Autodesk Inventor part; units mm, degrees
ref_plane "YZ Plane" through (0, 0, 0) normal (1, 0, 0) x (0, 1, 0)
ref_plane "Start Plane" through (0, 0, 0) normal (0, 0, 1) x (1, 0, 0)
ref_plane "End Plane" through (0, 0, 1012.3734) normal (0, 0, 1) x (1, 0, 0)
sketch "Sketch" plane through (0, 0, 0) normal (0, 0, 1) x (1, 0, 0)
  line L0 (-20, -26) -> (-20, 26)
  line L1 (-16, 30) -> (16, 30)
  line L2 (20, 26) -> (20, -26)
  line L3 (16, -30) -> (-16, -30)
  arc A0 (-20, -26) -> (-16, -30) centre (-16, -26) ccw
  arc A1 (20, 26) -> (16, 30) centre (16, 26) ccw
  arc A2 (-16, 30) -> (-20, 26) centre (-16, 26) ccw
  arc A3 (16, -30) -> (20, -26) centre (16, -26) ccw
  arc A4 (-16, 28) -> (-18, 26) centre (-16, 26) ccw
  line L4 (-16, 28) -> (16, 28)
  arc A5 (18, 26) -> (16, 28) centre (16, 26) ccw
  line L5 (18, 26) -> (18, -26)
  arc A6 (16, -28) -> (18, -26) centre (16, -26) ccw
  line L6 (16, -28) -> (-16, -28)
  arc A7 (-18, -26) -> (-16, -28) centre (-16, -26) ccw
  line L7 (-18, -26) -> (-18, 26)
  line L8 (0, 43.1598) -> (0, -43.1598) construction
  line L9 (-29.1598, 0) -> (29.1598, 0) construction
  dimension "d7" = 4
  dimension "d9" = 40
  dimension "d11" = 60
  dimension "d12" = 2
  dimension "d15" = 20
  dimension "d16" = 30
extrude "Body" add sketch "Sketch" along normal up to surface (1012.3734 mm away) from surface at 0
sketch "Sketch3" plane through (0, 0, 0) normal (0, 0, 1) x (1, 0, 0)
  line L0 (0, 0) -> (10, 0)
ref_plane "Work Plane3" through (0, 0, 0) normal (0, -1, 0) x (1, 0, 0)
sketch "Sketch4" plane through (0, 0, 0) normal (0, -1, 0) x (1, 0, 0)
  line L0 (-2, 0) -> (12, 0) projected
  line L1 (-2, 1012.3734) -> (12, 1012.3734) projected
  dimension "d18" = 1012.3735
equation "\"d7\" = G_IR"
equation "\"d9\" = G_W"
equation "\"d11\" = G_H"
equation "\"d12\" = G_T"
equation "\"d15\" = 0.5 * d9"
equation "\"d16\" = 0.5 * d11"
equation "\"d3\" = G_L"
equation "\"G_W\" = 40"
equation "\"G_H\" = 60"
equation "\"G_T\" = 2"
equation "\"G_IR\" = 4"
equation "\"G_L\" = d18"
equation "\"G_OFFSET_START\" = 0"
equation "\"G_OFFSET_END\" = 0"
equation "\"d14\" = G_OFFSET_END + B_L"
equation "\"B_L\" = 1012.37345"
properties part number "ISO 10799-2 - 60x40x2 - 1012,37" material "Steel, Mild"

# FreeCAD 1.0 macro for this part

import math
import FreeCAD as App
import Part
import Sketcher
from FreeCAD import Vector

doc = App.newDocument("Part")
body = doc.addObject("PartDesign::Body", "Body")

# Sketch on XY plane
sketch1 = body.newObject("Sketcher::SketchObject", "Sketch")
sketch1.AttachmentSupport = (doc.getObject("XY_Plane"), [""])
sketch1.MapMode = "FlatFace"
sketch1.addGeometry([
    Part.LineSegment(Vector(-20, 26, 0), Vector(-20, -26, 0)),  # 0
    Part.ArcOfCircle(Part.Circle(Vector(-16, -26, 0), Vector(0, 0, 1), 4), math.radians(180), math.radians(270)),  # 1
    Part.LineSegment(Vector(-16, -30, 0), Vector(16, -30, 0)),  # 2
    Part.ArcOfCircle(Part.Circle(Vector(16, -26, 0), Vector(0, 0, 1), 4), math.radians(-90), math.radians(0)),  # 3
    Part.LineSegment(Vector(20, -26, 0), Vector(20, 26, 0)),  # 4
    Part.ArcOfCircle(Part.Circle(Vector(16, 26, 0), Vector(0, 0, 1), 4), math.radians(0), math.radians(90)),  # 5
    Part.LineSegment(Vector(16, 30, 0), Vector(-16, 30, 0)),  # 6
    Part.ArcOfCircle(Part.Circle(Vector(-16, 26, 0), Vector(0, 0, 1), 4), math.radians(90), math.radians(180)),  # 7
    Part.ArcOfCircle(Part.Circle(Vector(-16, 26, 0), Vector(0, 0, 1), 2), math.radians(90), math.radians(180)),  # 8
    Part.LineSegment(Vector(-16, 28, 0), Vector(16, 28, 0)),  # 9
    Part.ArcOfCircle(Part.Circle(Vector(16, 26, 0), Vector(0, 0, 1), 2), math.radians(0), math.radians(90)),  # 10
    Part.LineSegment(Vector(18, 26, 0), Vector(18, -26, 0)),  # 11
    Part.ArcOfCircle(Part.Circle(Vector(16, -26, 0), Vector(0, 0, 1), 2), math.radians(-90), math.radians(0)),  # 12
    Part.LineSegment(Vector(16, -28, 0), Vector(-16, -28, 0)),  # 13
    Part.ArcOfCircle(Part.Circle(Vector(-16, -26, 0), Vector(0, 0, 1), 2), math.radians(180), math.radians(270)),  # 14
    Part.LineSegment(Vector(-18, -26, 0), Vector(-18, 26, 0)),  # 15
], False)
sketch1.addConstraint([
    Sketcher.Constraint("Tangent", 0, 2, 1, 1),
    Sketcher.Constraint("Tangent", 1, 2, 2, 1),
    Sketcher.Constraint("Tangent", 2, 2, 3, 1),
    Sketcher.Constraint("Tangent", 3, 2, 4, 1),
    Sketcher.Constraint("Tangent", 4, 2, 5, 1),
    Sketcher.Constraint("Tangent", 5, 2, 6, 1),
    Sketcher.Constraint("Tangent", 6, 2, 7, 1),
    Sketcher.Constraint("Tangent", 7, 2, 0, 1),
    Sketcher.Constraint("Tangent", 8, 1, 9, 1),
    Sketcher.Constraint("Tangent", 9, 2, 10, 2),
    Sketcher.Constraint("Tangent", 10, 1, 11, 1),
    Sketcher.Constraint("Tangent", 11, 2, 12, 2),
    Sketcher.Constraint("Tangent", 12, 1, 13, 1),
    Sketcher.Constraint("Tangent", 13, 2, 14, 2),
    Sketcher.Constraint("Tangent", 14, 1, 15, 1),
    Sketcher.Constraint("Tangent", 15, 2, 8, 2),
    Sketcher.Constraint("Vertical", 0),
    Sketcher.Constraint("Horizontal", 2),
    Sketcher.Constraint("Vertical", 4),
    Sketcher.Constraint("Horizontal", 6),
    Sketcher.Constraint("Horizontal", 9),
    Sketcher.Constraint("Vertical", 11),
    Sketcher.Constraint("Horizontal", 13),
    Sketcher.Constraint("Vertical", 15),
    Sketcher.Constraint("Coincident", 8, 3, 7, 3),
    Sketcher.Constraint("Coincident", 10, 3, 5, 3),
    Sketcher.Constraint("Coincident", 12, 3, 3, 3),
    Sketcher.Constraint("Equal", 1, 3),
    Sketcher.Constraint("Equal", 3, 5),
    Sketcher.Constraint("Equal", 5, 7),
    Sketcher.Constraint("Equal", 12, 14),
    Sketcher.Constraint("Symmetric", 1, 3, 5, 3, -1, 1),
    Sketcher.Constraint("Radius", 1, 4.0),
    Sketcher.Constraint("Radius", 8, 2.0),
    Sketcher.Constraint("DistanceX", 0, 2, -1, 1, 20.0),
    Sketcher.Constraint("DistanceY", 1, 2, -1, 1, 30.0),
])
pad1 = body.newObject("PartDesign::Pad", "Pad")
pad1.Profile = sketch1
pad1.Length = 1012.3734

doc.recompute()
